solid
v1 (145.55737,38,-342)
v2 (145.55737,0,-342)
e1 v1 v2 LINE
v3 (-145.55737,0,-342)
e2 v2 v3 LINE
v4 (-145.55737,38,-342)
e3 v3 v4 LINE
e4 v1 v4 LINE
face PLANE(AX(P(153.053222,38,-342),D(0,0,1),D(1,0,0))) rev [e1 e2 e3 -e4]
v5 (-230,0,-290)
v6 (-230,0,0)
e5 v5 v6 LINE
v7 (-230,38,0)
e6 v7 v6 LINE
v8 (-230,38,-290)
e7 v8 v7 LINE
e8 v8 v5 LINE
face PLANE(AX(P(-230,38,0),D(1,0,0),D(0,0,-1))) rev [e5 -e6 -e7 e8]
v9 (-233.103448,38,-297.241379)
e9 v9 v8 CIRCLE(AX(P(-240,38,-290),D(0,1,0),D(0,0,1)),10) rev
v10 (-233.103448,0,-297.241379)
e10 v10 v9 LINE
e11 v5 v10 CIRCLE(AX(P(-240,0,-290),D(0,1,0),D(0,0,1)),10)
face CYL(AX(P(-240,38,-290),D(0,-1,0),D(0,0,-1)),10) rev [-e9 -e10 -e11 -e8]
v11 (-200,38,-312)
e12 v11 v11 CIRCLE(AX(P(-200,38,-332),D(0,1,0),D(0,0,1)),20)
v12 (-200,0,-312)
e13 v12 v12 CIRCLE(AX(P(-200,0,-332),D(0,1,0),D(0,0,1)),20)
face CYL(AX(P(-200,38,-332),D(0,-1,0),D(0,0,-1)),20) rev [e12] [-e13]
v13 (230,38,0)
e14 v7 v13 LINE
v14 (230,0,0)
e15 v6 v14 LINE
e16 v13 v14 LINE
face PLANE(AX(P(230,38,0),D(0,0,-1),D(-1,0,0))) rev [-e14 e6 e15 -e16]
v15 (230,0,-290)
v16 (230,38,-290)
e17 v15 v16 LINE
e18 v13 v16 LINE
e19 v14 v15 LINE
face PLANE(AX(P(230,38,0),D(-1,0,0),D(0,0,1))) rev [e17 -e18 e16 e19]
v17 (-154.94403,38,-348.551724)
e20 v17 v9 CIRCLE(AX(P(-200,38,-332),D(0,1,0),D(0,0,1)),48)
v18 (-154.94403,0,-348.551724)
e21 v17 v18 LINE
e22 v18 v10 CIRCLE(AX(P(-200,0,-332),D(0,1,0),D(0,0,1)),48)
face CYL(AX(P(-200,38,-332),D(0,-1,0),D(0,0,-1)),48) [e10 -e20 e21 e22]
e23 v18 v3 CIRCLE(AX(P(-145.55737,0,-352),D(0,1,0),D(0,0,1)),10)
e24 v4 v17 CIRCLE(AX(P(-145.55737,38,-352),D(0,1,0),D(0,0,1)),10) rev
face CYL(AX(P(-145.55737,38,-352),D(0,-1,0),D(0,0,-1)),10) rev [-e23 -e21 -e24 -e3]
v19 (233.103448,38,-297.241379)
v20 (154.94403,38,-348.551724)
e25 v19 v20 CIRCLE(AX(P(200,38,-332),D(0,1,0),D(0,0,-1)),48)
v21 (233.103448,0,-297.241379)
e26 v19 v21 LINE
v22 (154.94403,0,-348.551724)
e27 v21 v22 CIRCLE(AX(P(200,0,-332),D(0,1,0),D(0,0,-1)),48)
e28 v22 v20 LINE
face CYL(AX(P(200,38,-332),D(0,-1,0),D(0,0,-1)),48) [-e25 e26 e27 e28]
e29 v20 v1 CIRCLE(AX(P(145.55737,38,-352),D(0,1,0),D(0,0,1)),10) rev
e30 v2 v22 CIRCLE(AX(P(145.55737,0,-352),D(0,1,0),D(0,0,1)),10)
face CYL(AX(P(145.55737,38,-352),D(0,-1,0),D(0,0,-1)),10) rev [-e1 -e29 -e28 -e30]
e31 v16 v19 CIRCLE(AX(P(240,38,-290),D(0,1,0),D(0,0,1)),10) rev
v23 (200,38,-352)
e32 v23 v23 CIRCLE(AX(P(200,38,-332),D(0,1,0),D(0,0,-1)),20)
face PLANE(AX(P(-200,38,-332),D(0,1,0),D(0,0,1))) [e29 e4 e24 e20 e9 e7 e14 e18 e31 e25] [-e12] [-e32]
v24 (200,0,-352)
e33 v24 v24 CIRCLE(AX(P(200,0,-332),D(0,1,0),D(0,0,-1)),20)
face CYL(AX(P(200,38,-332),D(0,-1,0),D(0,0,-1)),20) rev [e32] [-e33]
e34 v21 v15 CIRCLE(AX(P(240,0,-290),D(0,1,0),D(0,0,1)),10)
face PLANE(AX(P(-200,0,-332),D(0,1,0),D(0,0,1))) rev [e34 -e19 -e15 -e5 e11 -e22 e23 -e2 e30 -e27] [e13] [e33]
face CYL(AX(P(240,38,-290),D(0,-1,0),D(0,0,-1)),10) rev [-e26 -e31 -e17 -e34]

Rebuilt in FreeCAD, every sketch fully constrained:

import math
import FreeCAD as App
import Part
import Sketcher

V = App.Vector


def edges_at(feature, points):
    """Names of the edges that pass closest to the given points."""
    edges = feature.Shape.Edges
    near = lambda p: min(range(len(edges)), key=lambda i: edges[i].distToShape(Part.Vertex(*p))[0])
    return sorted({f"Edge{near(p) + 1}" for p in points})

doc = App.newDocument("Part")
params = doc.addObject("Spreadsheet::Sheet", "Params")
for row, (alias, value) in enumerate([
    ("sketch1_diameter", "40 mm"),
    ("sketch1_radius", "48 mm"),
    ("sketch1_width", "460 mm"),
    ("pad1_length", "38 mm"),
    ("fillet_radius", "10 mm"),
], start=1):
    params.set(f"A{row}", alias)
    params.set(f"B{row}", "=" + value)
    params.setAlias(f"B{row}", alias)

body = doc.addObject("PartDesign::Body", "Body")

sketch1 = body.newObject("Sketcher::SketchObject", "Sketch")
sketch1.AttachmentSupport = (doc.getObject("XZ_Plane"), [""])
sketch1.MapMode = "FlatFace"
sketch1.addGeometry([
    Part.LineSegment(V(-230, 0, 0), V(230, 0, 0)),
    Part.LineSegment(V(230, 0, 0), V(230, -295, 0)),
    Part.ArcOfCircle(Part.Circle(V(200, -332, 0), V(0, 0, 1), 48), math.radians(-168), math.radians(51)),
    Part.LineSegment(V(153, -342, 0), V(-153, -342, 0)),
    Part.ArcOfCircle(Part.Circle(V(-200, -332, 0), V(0, 0, 1), 48), math.radians(129), math.radians(348)),
    Part.LineSegment(V(-230, -295, 0), V(-230, 0, 0)),
    Part.Circle(V(200, -332, 0), V(0, 0, 1), 20),
    Part.Circle(V(-200, -332, 0), V(0, 0, 1), 20),
], False)
sketch1.addConstraint([
    Sketcher.Constraint("Coincident", 0, 2, 1, 1),
    Sketcher.Constraint("Coincident", 1, 2, 2, 2),
    Sketcher.Constraint("Coincident", 2, 1, 3, 1),
    Sketcher.Constraint("Coincident", 3, 2, 4, 2),
    Sketcher.Constraint("Coincident", 4, 1, 5, 1),
    Sketcher.Constraint("Coincident", 5, 2, 0, 1),
    Sketcher.Constraint("Horizontal", 0),
    Sketcher.Constraint("Vertical", 1),
    Sketcher.Constraint("Horizontal", 3),
    Sketcher.Constraint("Vertical", 5),
    Sketcher.Constraint("Coincident", 6, 3, 2, 3),
    Sketcher.Constraint("Coincident", 7, 3, 4, 3),
    Sketcher.Constraint("Equal", 2, 4),
    Sketcher.Constraint("Equal", 6, 7),
    Sketcher.Constraint("Symmetric", 0, 2, 5, 2, -1, 1),
    Sketcher.Constraint("Symmetric", 2, 3, 4, 3, -2),
    Sketcher.Constraint("Diameter", 6, 40.0),
    Sketcher.Constraint("Radius", 2, 48.0),
    Sketcher.Constraint("DistanceX", 0, 1, 0, 2, 460.0),
    Sketcher.Constraint("DistanceX", -1, 1, 2, 3, 200.0),
    Sketcher.Constraint("DistanceY", 2, 3, -1, 1, 332.0),
    Sketcher.Constraint("DistanceY", 2, 1, -1, 1, 342.0),
])
sketch1.setExpression("Constraints[16]", "Params.sketch1_diameter")
sketch1.setExpression("Constraints[17]", "Params.sketch1_radius")
sketch1.setExpression("Constraints[18]", "Params.sketch1_width")
pad1 = body.newObject("PartDesign::Pad", "Pad")
pad1.Profile = sketch1
pad1.setExpression("Length", "Params.pad1_length")
pad1.Reversed = True
doc.recompute()

fillet = body.newObject("PartDesign::Fillet", "Fillet")
fillet.Base = (pad1, edges_at(pad1, [
    (-230, 19, -294.53),
    (-153.053, 19, -342),
    (153.053, 19, -342),
    (230, 19, -294.53),
]))
fillet.setExpression("Radius", "Params.fillet_radius")

doc.recompute()
